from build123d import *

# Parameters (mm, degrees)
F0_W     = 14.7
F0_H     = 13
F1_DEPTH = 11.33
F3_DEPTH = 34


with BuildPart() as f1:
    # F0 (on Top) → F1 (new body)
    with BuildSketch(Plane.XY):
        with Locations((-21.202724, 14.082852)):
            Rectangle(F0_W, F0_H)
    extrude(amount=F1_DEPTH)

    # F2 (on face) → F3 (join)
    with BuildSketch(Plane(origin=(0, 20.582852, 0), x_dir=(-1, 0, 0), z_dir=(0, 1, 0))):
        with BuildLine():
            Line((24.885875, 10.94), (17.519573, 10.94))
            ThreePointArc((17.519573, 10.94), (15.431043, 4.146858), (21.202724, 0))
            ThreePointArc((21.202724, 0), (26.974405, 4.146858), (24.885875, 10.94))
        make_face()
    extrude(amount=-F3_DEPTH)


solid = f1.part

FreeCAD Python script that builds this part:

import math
import FreeCAD as App
import Part
import Sketcher
from FreeCAD import Vector


def add_polygon(sketch, points):
    """Adds a closed chain of lines whose ends are joined by coincident constraints."""
    first, n = sketch.GeometryCount, len(points)
    for a, b in zip(points, points[1:] + points[:1]):
        sketch.addGeometry(Part.LineSegment(App.Vector(*a, 0), App.Vector(*b, 0)), False)
    for i in range(n):
        sketch.addConstraint(Sketcher.Constraint("Coincident", first + i, 2, first + (i + 1) % n, 1))

doc = App.newDocument("Part")
body = doc.addObject("PartDesign::Body", "Body")

# Sketch on XY plane
sketch1 = body.newObject("Sketcher::SketchObject", "Sketch")
sketch1.AttachmentSupport = (doc.getObject("XY_Plane"), [""])
sketch1.MapMode = "FlatFace"
add_polygon(sketch1, [(-28.552724, 20.582852), (-28.552724, 7.582852), (-13.852724, 7.582852), (-13.852724, 20.582852)])  # lines 0-3
sketch1.addConstraint([
    Sketcher.Constraint("Vertical", 0),
    Sketcher.Constraint("Horizontal", 1),
    Sketcher.Constraint("Vertical", 2),
    Sketcher.Constraint("Horizontal", 3),
    Sketcher.Constraint("DistanceY", 0, 2, 0, 1, 13.0),
    Sketcher.Constraint("DistanceX", 1, 1, 1, 2, 14.7),
    Sketcher.Constraint("DistanceY", -1, 1, 2, 2, 20.582852),
    Sketcher.Constraint("DistanceX", 0, 2, -1, 1, 28.552724),
])
pad1 = body.newObject("PartDesign::Pad", "Pad")
pad1.Profile = sketch1
pad1.Length = 11.33

# Sketch on XZ plane
sketch2 = body.newObject("Sketcher::SketchObject", "Sketch001")
sketch2.AttachmentSupport = (doc.getObject("XZ_Plane"), [""])
sketch2.MapMode = "FlatFace"
sketch2.AttachmentOffset = App.Placement(Vector(0, 0, -20.582852), App.Rotation())
sketch2.addGeometry([
    Part.LineSegment(Vector(-24.885875, 10.94, 0), Vector(-17.519573, 10.94, 0)),
    Part.ArcOfCircle(Part.Circle(Vector(-21.202724, 6.09, 0), Vector(0, 0, 1), 6.09), math.radians(-90.000002), math.radians(52.786508)),
    Part.ArcOfCircle(Part.Circle(Vector(-21.202724, 6.09, 0), Vector(0, 0, 1), 6.09), math.radians(127.213492), math.radians(270.000002)),
], False)
sketch2.addConstraint([
    Sketcher.Constraint("Coincident", 0, 2, 1, 2),
    Sketcher.Constraint("Tangent", 1, 1, 2, 2),
    Sketcher.Constraint("Coincident", 2, 1, 0, 1),
    Sketcher.Constraint("Horizontal", 0),
    Sketcher.Constraint("Equal", 1, 2),
    Sketcher.Constraint("PointOnObject", 1, 1, -1),
    Sketcher.Constraint("Vertical", 2, 3, 1, 1),
    Sketcher.Constraint("Radius", 1, 6.09),
    Sketcher.Constraint("DistanceY", -1, 1, 0, 2, 10.94),
    Sketcher.Constraint("DistanceX", 1, 3, -1, 1, 21.202724),
])
pad2 = body.newObject("PartDesign::Pad", "Pad001")
pad2.Profile = sketch2
pad2.Length = 34

doc.recompute()
